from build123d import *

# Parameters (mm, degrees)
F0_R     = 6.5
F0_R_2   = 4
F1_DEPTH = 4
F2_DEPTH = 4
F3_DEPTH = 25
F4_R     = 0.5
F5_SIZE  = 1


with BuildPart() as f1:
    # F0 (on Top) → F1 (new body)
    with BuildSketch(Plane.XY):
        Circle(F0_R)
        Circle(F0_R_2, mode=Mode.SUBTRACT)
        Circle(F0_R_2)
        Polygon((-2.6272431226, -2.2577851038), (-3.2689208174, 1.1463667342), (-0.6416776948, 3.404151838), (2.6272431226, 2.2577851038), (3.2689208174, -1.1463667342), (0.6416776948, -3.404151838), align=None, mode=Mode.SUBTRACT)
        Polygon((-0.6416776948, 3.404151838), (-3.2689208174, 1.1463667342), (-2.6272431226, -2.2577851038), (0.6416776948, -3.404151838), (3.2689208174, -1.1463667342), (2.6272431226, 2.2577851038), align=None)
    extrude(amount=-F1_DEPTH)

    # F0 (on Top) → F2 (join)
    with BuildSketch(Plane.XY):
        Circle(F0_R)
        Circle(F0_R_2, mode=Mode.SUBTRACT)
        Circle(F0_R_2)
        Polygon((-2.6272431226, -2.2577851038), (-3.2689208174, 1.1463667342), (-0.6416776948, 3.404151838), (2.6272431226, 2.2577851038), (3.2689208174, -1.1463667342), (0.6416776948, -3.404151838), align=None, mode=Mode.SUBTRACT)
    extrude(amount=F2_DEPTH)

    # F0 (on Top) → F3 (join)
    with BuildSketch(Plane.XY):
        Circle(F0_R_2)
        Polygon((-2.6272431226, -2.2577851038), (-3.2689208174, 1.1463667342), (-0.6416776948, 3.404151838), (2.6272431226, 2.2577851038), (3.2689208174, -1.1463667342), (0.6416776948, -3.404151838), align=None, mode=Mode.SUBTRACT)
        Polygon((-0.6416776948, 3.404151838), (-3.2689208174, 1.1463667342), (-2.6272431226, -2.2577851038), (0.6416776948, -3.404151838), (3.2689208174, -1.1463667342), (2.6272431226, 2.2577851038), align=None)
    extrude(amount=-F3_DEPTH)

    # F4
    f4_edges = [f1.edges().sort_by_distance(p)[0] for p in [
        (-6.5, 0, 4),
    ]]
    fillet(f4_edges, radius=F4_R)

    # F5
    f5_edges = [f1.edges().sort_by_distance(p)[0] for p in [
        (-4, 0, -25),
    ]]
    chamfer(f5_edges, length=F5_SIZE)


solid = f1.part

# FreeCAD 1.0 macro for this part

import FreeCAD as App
import Part
import Sketcher
Q = App.Units.Quantity


def edges_at(feature, points):
    """Names of the edges that pass closest to the given points."""
    edges = feature.Shape.Edges
    near = lambda p: min(range(len(edges)), key=lambda i: edges[i].distToShape(Part.Vertex(*p))[0])
    return sorted({f"Edge{near(p) + 1}" for p in points})

doc = App.newDocument("Part")
body = doc.addObject("PartDesign::Body", "Body")

# Sketch on XY plane
sketch1 = body.newObject("Sketcher::SketchObject", "Sketch")
sketch1.AttachmentSupport = (doc.getObject("XY_Plane"), [""])
sketch1.MapMode = "FlatFace"
sketch1.addGeometry(Part.Circle(App.Vector(0, 0, 0), App.Vector(0, 0, 1), 6), False)
sketch1.addConstraint([
    Sketcher.Constraint("Coincident", 0, 3, -1, 1),
    Sketcher.Constraint("Diameter", 0, Q("13 mm")),
])
pad1 = body.newObject("PartDesign::Pad", "Pad")
pad1.Profile = sketch1
pad1.Length = 4
pad1.Reversed = True

# Sketch on XY plane
sketch2 = body.newObject("Sketcher::SketchObject", "Sketch001")
sketch2.AttachmentSupport = (doc.getObject("XY_Plane"), [""])
sketch2.MapMode = "FlatFace"
sketch2.addGeometry([
    Part.Circle(App.Vector(0, 0, 0), App.Vector(0, 0, 1), 6.5),  # 0
    Part.LineSegment(App.Vector(0.6, -3.4, 0), App.Vector(-2.6, -2.3, 0)),  # 1
    Part.LineSegment(App.Vector(-2.6, -2.3, 0), App.Vector(-3.3, 1.1, 0)),  # 2
    Part.LineSegment(App.Vector(-3.3, 1.1, 0), App.Vector(-0.6, 3.4, 0)),  # 3
    Part.LineSegment(App.Vector(-0.6, 3.4, 0), App.Vector(2.6, 2.3, 0)),  # 4
    Part.LineSegment(App.Vector(2.6, 2.3, 0), App.Vector(3.3, -1.1, 0)),  # 5
    Part.LineSegment(App.Vector(3.3, -1.1, 0), App.Vector(0.6, -3.4, 0)),  # 6
], False)
sketch2.addConstraint([
    Sketcher.Constraint("Coincident", 1, 2, 2, 1),
    Sketcher.Constraint("Coincident", 2, 2, 3, 1),
    Sketcher.Constraint("Coincident", 3, 2, 4, 1),
    Sketcher.Constraint("Coincident", 4, 2, 5, 1),
    Sketcher.Constraint("Coincident", 5, 2, 6, 1),
    Sketcher.Constraint("Coincident", 6, 2, 1, 1),
    Sketcher.Constraint("Coincident", 0, 3, -1, 1),
    Sketcher.Constraint("Symmetric", 1, 2, 4, 2, -1, 1),
    Sketcher.Constraint("Symmetric", 2, 2, 5, 2, -1, 1),
    Sketcher.Constraint("Symmetric", 3, 2, 6, 2, -1, 1),
    Sketcher.Constraint("Equal", 1, 2),
    Sketcher.Constraint("Equal", 2, 3),
    Sketcher.Constraint("Diameter", 0, Q("13 mm")),
    Sketcher.Constraint("Distance", 1, Q("3.464102 mm")),
    Sketcher.Constraint("DistanceX", 3, 2, 5, 2, Q("3.910599 mm")),
    Sketcher.Constraint("DistanceX", 2, 2, -1, 1, Q("3.268921 mm")),
    Sketcher.Constraint("DistanceY", -1, 1, 3, 2, Q("3.404152 mm")),
])
pad2 = body.newObject("PartDesign::Pad", "Pad001")
pad2.Profile = sketch2
pad2.Length = 4

# Sketch on XY plane
sketch3 = body.newObject("Sketcher::SketchObject", "Sketch002")
sketch3.AttachmentSupport = (doc.getObject("XY_Plane"), [""])
sketch3.MapMode = "FlatFace"
sketch3.addGeometry(Part.Circle(App.Vector(0, 0, 0), App.Vector(0, 0, 1), 4), False)
sketch3.addConstraint([
    Sketcher.Constraint("Coincident", 0, 3, -1, 1),
    Sketcher.Constraint("Diameter", 0, Q("8 mm")),
])
pad3 = body.newObject("PartDesign::Pad", "Pad002")
pad3.Profile = sketch3
pad3.Length = 25
pad3.Reversed = True
doc.recompute()

fillet = body.newObject("PartDesign::Fillet", "Fillet")
fillet.Base = (pad3, edges_at(pad3, [(-6.5, 0, 4)]))
fillet.Radius = 0.5
doc.recompute()

chamfer = body.newObject("PartDesign::Chamfer", "Chamfer")
chamfer.Base = (fillet, edges_at(fillet, [(-4, 0, -25)]))
chamfer.Size = 1

doc.recompute()
